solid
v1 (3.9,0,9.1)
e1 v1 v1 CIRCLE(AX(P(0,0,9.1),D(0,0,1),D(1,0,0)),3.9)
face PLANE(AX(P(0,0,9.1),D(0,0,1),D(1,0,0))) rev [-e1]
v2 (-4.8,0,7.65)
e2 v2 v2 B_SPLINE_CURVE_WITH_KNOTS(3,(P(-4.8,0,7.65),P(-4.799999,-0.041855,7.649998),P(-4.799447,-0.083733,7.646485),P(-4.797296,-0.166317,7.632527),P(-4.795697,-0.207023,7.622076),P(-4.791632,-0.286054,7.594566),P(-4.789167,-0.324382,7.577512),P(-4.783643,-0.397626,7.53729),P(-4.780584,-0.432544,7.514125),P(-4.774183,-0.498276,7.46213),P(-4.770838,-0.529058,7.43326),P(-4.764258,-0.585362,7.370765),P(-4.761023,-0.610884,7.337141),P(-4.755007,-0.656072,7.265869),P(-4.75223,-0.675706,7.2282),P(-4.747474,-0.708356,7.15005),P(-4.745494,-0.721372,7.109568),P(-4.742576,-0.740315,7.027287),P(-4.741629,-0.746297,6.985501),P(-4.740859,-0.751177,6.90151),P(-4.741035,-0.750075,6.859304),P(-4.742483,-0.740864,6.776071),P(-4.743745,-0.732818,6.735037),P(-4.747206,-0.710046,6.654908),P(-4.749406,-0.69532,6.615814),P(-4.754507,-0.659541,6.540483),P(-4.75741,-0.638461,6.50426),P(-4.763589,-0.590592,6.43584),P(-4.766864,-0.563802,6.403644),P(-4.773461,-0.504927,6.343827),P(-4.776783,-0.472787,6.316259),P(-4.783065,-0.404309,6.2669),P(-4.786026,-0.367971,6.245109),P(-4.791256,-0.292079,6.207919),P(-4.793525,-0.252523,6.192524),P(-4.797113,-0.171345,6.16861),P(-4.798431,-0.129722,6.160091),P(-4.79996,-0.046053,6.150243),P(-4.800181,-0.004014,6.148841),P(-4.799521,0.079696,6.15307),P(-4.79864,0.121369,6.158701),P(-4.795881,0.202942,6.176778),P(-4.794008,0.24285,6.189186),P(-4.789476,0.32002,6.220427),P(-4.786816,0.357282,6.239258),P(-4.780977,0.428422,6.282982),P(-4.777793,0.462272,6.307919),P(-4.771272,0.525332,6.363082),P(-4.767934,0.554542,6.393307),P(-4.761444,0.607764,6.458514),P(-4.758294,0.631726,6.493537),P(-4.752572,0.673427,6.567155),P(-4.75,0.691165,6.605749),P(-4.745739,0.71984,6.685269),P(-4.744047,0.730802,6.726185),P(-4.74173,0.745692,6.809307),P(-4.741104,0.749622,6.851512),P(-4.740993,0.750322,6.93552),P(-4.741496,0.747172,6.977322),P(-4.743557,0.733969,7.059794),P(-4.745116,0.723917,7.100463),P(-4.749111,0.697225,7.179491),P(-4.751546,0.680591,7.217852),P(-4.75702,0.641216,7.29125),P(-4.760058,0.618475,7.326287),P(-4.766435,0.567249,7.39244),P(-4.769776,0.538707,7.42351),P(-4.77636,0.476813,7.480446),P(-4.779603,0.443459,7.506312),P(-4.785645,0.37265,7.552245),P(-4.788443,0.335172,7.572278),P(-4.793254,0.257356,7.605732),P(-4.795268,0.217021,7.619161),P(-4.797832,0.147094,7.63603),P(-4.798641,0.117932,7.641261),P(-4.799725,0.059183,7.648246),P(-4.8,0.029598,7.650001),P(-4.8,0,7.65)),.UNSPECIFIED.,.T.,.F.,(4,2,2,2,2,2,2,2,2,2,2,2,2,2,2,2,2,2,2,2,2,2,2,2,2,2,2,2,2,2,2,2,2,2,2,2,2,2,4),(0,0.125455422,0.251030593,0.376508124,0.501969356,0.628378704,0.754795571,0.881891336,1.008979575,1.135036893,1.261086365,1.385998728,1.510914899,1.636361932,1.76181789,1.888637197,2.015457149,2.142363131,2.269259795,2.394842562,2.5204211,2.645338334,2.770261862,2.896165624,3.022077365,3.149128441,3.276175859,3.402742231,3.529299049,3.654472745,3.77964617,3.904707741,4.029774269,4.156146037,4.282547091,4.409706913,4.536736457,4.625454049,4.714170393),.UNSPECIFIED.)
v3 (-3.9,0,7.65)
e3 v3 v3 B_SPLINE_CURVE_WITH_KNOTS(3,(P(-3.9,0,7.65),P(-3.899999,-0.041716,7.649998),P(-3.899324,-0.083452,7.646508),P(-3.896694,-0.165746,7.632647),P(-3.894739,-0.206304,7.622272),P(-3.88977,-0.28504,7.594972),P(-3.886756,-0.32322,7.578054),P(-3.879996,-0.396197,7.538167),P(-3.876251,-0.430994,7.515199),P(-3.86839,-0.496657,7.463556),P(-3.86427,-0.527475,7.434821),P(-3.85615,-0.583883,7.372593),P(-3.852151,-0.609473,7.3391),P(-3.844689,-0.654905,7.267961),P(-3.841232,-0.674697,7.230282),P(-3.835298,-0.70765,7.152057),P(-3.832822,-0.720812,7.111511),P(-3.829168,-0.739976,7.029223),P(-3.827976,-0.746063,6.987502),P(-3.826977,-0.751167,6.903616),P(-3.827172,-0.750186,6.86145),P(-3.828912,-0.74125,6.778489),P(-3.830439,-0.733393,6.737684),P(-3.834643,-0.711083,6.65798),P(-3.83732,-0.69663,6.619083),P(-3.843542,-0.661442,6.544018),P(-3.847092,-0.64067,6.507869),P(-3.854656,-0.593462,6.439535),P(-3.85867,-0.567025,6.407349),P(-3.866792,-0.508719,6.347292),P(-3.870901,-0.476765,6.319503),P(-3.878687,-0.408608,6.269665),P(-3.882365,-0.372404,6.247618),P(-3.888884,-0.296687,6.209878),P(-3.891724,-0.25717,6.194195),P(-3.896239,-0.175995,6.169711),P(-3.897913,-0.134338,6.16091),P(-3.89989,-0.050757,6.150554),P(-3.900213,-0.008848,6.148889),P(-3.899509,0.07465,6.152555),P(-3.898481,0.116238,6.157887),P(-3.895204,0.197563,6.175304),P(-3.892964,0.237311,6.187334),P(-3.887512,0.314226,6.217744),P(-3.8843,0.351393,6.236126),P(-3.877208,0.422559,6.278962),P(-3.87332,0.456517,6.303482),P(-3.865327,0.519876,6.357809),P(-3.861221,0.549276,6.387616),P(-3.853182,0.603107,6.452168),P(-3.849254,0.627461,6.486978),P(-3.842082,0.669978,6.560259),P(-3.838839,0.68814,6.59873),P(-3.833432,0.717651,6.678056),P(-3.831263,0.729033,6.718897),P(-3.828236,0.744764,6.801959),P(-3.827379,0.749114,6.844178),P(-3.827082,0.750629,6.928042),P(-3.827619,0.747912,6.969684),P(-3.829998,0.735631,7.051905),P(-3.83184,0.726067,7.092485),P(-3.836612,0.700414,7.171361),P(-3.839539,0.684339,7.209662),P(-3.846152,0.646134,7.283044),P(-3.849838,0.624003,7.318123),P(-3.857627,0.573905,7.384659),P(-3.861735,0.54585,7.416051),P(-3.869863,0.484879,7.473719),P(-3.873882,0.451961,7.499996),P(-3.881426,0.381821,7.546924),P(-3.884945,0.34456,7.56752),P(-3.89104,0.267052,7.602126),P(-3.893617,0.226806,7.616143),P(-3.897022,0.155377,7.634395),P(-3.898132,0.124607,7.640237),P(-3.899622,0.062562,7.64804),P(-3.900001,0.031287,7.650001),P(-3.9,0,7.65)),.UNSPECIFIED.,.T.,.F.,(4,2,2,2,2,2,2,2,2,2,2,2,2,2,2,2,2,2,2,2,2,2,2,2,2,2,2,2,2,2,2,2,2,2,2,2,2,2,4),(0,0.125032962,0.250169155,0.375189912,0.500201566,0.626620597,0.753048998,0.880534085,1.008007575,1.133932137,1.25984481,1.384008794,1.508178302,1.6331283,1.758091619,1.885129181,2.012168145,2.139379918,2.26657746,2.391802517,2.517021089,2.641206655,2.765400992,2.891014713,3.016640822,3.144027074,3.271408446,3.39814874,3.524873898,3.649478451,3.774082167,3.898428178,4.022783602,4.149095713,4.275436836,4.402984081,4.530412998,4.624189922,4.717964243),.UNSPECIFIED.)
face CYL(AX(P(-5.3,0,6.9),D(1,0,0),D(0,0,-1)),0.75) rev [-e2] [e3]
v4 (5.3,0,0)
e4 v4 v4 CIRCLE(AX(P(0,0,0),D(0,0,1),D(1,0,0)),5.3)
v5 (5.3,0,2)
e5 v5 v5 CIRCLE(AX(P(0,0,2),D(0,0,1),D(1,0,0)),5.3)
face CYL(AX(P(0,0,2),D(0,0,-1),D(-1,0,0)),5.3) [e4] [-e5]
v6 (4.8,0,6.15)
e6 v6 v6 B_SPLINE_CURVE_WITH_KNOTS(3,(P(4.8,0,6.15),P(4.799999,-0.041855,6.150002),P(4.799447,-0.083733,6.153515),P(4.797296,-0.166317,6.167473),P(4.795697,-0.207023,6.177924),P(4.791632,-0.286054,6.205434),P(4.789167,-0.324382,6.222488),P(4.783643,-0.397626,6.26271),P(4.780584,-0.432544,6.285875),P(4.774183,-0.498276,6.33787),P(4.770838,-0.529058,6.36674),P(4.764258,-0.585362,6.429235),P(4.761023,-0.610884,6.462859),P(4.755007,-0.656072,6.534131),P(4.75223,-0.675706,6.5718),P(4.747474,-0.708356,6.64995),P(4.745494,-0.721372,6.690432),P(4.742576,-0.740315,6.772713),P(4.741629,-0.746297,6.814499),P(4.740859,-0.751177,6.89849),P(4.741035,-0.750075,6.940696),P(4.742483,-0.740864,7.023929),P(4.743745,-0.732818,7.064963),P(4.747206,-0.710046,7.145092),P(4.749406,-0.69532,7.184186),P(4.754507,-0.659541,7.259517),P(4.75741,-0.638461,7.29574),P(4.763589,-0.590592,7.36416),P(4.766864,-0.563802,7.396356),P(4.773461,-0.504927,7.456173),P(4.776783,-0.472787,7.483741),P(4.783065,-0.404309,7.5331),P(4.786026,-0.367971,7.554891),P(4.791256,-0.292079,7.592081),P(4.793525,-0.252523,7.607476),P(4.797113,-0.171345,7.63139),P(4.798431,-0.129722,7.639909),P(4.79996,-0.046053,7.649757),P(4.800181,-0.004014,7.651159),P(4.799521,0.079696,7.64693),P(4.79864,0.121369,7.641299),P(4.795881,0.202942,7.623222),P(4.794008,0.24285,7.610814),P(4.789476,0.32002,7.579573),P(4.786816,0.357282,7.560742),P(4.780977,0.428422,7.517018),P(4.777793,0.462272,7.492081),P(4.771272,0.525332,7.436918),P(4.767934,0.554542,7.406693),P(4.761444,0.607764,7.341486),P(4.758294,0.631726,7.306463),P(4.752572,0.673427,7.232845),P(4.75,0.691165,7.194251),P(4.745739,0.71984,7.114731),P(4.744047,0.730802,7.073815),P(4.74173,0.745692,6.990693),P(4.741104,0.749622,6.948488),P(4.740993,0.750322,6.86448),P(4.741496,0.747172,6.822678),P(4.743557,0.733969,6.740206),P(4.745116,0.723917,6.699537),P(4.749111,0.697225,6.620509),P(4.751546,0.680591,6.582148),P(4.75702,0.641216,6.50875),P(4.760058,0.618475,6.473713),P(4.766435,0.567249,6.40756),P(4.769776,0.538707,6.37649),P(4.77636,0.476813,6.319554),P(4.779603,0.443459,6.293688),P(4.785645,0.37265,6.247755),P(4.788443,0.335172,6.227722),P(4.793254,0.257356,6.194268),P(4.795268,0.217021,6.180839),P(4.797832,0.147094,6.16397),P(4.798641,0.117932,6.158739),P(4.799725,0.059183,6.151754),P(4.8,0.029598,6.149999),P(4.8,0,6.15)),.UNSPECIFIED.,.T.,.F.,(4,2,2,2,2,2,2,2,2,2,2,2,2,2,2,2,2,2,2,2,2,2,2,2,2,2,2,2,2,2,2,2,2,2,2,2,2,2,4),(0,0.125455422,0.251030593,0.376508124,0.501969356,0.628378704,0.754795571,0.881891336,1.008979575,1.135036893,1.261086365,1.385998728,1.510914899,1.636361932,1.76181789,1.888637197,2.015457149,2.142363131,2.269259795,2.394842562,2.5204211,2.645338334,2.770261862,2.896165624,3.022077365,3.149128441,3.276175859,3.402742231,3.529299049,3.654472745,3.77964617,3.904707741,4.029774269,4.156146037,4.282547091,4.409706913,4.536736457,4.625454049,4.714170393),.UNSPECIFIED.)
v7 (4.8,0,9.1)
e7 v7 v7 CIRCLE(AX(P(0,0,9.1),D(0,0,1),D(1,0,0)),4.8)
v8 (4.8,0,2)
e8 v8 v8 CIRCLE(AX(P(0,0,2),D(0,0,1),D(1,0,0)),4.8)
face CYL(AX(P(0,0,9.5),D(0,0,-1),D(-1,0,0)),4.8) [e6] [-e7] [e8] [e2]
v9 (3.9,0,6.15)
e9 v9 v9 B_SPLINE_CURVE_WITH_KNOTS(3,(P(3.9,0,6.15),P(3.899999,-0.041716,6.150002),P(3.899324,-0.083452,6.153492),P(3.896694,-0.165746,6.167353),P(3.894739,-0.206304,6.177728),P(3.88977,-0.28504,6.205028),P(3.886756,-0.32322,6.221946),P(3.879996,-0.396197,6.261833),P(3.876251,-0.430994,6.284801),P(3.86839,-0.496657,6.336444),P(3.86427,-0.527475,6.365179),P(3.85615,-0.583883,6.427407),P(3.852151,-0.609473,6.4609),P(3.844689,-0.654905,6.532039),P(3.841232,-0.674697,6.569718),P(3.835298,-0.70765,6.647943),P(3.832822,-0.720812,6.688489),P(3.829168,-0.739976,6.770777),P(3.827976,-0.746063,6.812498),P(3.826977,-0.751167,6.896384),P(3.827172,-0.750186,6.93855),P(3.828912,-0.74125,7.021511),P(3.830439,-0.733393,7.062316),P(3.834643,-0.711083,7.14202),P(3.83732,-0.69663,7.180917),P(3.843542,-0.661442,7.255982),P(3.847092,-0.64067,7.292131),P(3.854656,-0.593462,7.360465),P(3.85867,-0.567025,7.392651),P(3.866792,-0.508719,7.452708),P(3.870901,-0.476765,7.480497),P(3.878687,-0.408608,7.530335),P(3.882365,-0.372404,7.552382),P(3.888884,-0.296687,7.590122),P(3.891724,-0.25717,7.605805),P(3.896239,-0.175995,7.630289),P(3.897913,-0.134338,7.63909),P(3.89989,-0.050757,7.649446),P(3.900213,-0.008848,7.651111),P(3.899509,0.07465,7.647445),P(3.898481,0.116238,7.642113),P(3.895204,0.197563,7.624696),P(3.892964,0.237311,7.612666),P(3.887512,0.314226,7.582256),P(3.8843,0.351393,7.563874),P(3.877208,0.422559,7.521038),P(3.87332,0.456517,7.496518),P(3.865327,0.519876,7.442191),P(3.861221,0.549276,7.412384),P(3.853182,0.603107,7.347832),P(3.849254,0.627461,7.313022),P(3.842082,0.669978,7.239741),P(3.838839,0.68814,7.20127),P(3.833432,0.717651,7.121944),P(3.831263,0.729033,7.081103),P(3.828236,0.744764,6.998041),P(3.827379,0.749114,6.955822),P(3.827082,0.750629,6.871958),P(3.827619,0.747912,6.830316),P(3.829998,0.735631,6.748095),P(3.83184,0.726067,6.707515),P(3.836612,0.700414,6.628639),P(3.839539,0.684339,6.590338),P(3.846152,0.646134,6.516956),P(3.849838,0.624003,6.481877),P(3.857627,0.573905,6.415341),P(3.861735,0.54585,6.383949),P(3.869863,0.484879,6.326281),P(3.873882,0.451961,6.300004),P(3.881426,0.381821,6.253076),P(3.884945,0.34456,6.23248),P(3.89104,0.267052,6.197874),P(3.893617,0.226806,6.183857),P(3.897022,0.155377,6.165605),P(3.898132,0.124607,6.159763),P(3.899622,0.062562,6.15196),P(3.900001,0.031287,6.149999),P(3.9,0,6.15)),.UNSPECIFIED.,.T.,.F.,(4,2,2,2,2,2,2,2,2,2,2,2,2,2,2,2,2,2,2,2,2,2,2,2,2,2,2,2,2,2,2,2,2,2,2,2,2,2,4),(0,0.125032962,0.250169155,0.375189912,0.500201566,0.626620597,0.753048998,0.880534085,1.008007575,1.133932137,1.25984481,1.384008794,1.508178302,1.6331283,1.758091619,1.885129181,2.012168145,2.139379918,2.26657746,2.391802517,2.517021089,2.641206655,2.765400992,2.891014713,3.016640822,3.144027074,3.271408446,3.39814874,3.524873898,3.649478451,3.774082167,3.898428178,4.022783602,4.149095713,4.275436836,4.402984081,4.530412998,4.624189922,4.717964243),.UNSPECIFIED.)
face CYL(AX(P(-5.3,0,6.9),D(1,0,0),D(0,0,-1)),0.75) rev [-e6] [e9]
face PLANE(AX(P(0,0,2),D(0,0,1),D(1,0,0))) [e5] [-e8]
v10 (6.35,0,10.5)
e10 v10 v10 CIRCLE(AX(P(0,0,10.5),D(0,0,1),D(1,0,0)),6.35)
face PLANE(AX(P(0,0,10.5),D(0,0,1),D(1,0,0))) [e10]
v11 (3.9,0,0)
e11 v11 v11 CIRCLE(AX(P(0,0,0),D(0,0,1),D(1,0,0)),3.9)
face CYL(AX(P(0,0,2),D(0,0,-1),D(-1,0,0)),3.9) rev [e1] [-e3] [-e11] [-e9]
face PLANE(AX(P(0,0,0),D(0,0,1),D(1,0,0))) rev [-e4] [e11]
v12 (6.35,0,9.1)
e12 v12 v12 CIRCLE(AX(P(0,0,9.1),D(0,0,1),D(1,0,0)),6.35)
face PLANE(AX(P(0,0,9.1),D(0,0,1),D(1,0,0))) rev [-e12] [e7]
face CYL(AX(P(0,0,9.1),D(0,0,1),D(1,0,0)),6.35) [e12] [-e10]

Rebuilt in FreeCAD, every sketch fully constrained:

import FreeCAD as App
import Part
import Sketcher
from FreeCAD import Vector

doc = App.newDocument("Part")
body = doc.addObject("PartDesign::Body", "Body")

# Sketch on XY plane
sketch1 = doc.addObject("Sketcher::SketchObject", "Sketch")
body.addObject(sketch1)
sketch1.AttachmentSupport = (doc.XY_Plane, [""])
sketch1.MapMode = "FlatFace"
sketch1.addGeometry([
    Part.Circle(Vector(0, 0, 0), Vector(0, 0, 1), 5.3),
    Part.Circle(Vector(0, 0, 0), Vector(0, 0, 1), 3.9),
], False)
sketch1.addConstraint([
    Sketcher.Constraint("Coincident", 0, 3, -1, 1),
    Sketcher.Constraint("Coincident", 1, 3, -1, 1),
    Sketcher.Constraint("Diameter", 0, 10.6),
    Sketcher.Constraint("Diameter", 1, 7.8),
])
pad1 = doc.addObject("PartDesign::Pad", "Pad")
body.addObject(pad1)
pad1.Profile = sketch1
pad1.Length = 2

# Sketch on XY plane
sketch2 = doc.addObject("Sketcher::SketchObject", "Sketch001")
body.addObject(sketch2)
sketch2.AttachmentSupport = (doc.XY_Plane, [""])
sketch2.MapMode = "FlatFace"
sketch2.AttachmentOffset = App.Placement(Vector(0, 0, 2), App.Rotation())
sketch2.addGeometry([
    Part.Circle(Vector(0, 0, 0), Vector(0, 0, 1), 4.8),
    Part.Circle(Vector(0, 0, 0), Vector(0, 0, 1), 3.9),
], False)
sketch2.addConstraint([
    Sketcher.Constraint("Coincident", 0, 3, -1, 1),
    Sketcher.Constraint("Coincident", 1, 3, -1, 1),
    Sketcher.Constraint("Diameter", 0, 9.6),
    Sketcher.Constraint("Diameter", 1, 7.8),
])
pad2 = doc.addObject("PartDesign::Pad", "Pad001")
body.addObject(pad2)
pad2.Profile = sketch2
pad2.Length = 7.5

# Sketch on YZ plane
sketch3 = doc.addObject("Sketcher::SketchObject", "Sketch002")
body.addObject(sketch3)
sketch3.AttachmentSupport = (doc.YZ_Plane, [""])
sketch3.MapMode = "FlatFace"
sketch3.addGeometry(Part.Circle(Vector(0, 6.9, 0), Vector(0, 0, 1), 0.8), False)
sketch3.addConstraint([
    Sketcher.Constraint("PointOnObject", 0, 3, -2),
    Sketcher.Constraint("Diameter", 0, 1.5),
    Sketcher.Constraint("DistanceY", -1, 1, 0, 3, 6.9),
])
pocket1 = doc.addObject("PartDesign::Pocket", "Pocket")
body.addObject(pocket1)
pocket1.Profile = sketch3
pocket1.Type = "ThroughAll"
pocket1.Midplane = True

# Sketch on XY plane
sketch4 = doc.addObject("Sketcher::SketchObject", "Sketch003")
body.addObject(sketch4)
sketch4.AttachmentSupport = (doc.XY_Plane, [""])
sketch4.MapMode = "FlatFace"
sketch4.AttachmentOffset = App.Placement(Vector(0, 0, 9.5), App.Rotation())
sketch4.addGeometry(Part.Circle(Vector(0, 0, 0), Vector(0, 0, 1), 6), False)
sketch4.addConstraint([
    Sketcher.Constraint("Coincident", 0, 3, -1, 1),
    Sketcher.Constraint("Diameter", 0, 12.7),
])
pad3 = doc.addObject("PartDesign::Pad", "Pad002")
body.addObject(pad3)
pad3.Profile = sketch4
pad3.Type = "TwoLengths"
pad3.Length = 1
pad3.Length2 = 0.4

doc.recompute()
